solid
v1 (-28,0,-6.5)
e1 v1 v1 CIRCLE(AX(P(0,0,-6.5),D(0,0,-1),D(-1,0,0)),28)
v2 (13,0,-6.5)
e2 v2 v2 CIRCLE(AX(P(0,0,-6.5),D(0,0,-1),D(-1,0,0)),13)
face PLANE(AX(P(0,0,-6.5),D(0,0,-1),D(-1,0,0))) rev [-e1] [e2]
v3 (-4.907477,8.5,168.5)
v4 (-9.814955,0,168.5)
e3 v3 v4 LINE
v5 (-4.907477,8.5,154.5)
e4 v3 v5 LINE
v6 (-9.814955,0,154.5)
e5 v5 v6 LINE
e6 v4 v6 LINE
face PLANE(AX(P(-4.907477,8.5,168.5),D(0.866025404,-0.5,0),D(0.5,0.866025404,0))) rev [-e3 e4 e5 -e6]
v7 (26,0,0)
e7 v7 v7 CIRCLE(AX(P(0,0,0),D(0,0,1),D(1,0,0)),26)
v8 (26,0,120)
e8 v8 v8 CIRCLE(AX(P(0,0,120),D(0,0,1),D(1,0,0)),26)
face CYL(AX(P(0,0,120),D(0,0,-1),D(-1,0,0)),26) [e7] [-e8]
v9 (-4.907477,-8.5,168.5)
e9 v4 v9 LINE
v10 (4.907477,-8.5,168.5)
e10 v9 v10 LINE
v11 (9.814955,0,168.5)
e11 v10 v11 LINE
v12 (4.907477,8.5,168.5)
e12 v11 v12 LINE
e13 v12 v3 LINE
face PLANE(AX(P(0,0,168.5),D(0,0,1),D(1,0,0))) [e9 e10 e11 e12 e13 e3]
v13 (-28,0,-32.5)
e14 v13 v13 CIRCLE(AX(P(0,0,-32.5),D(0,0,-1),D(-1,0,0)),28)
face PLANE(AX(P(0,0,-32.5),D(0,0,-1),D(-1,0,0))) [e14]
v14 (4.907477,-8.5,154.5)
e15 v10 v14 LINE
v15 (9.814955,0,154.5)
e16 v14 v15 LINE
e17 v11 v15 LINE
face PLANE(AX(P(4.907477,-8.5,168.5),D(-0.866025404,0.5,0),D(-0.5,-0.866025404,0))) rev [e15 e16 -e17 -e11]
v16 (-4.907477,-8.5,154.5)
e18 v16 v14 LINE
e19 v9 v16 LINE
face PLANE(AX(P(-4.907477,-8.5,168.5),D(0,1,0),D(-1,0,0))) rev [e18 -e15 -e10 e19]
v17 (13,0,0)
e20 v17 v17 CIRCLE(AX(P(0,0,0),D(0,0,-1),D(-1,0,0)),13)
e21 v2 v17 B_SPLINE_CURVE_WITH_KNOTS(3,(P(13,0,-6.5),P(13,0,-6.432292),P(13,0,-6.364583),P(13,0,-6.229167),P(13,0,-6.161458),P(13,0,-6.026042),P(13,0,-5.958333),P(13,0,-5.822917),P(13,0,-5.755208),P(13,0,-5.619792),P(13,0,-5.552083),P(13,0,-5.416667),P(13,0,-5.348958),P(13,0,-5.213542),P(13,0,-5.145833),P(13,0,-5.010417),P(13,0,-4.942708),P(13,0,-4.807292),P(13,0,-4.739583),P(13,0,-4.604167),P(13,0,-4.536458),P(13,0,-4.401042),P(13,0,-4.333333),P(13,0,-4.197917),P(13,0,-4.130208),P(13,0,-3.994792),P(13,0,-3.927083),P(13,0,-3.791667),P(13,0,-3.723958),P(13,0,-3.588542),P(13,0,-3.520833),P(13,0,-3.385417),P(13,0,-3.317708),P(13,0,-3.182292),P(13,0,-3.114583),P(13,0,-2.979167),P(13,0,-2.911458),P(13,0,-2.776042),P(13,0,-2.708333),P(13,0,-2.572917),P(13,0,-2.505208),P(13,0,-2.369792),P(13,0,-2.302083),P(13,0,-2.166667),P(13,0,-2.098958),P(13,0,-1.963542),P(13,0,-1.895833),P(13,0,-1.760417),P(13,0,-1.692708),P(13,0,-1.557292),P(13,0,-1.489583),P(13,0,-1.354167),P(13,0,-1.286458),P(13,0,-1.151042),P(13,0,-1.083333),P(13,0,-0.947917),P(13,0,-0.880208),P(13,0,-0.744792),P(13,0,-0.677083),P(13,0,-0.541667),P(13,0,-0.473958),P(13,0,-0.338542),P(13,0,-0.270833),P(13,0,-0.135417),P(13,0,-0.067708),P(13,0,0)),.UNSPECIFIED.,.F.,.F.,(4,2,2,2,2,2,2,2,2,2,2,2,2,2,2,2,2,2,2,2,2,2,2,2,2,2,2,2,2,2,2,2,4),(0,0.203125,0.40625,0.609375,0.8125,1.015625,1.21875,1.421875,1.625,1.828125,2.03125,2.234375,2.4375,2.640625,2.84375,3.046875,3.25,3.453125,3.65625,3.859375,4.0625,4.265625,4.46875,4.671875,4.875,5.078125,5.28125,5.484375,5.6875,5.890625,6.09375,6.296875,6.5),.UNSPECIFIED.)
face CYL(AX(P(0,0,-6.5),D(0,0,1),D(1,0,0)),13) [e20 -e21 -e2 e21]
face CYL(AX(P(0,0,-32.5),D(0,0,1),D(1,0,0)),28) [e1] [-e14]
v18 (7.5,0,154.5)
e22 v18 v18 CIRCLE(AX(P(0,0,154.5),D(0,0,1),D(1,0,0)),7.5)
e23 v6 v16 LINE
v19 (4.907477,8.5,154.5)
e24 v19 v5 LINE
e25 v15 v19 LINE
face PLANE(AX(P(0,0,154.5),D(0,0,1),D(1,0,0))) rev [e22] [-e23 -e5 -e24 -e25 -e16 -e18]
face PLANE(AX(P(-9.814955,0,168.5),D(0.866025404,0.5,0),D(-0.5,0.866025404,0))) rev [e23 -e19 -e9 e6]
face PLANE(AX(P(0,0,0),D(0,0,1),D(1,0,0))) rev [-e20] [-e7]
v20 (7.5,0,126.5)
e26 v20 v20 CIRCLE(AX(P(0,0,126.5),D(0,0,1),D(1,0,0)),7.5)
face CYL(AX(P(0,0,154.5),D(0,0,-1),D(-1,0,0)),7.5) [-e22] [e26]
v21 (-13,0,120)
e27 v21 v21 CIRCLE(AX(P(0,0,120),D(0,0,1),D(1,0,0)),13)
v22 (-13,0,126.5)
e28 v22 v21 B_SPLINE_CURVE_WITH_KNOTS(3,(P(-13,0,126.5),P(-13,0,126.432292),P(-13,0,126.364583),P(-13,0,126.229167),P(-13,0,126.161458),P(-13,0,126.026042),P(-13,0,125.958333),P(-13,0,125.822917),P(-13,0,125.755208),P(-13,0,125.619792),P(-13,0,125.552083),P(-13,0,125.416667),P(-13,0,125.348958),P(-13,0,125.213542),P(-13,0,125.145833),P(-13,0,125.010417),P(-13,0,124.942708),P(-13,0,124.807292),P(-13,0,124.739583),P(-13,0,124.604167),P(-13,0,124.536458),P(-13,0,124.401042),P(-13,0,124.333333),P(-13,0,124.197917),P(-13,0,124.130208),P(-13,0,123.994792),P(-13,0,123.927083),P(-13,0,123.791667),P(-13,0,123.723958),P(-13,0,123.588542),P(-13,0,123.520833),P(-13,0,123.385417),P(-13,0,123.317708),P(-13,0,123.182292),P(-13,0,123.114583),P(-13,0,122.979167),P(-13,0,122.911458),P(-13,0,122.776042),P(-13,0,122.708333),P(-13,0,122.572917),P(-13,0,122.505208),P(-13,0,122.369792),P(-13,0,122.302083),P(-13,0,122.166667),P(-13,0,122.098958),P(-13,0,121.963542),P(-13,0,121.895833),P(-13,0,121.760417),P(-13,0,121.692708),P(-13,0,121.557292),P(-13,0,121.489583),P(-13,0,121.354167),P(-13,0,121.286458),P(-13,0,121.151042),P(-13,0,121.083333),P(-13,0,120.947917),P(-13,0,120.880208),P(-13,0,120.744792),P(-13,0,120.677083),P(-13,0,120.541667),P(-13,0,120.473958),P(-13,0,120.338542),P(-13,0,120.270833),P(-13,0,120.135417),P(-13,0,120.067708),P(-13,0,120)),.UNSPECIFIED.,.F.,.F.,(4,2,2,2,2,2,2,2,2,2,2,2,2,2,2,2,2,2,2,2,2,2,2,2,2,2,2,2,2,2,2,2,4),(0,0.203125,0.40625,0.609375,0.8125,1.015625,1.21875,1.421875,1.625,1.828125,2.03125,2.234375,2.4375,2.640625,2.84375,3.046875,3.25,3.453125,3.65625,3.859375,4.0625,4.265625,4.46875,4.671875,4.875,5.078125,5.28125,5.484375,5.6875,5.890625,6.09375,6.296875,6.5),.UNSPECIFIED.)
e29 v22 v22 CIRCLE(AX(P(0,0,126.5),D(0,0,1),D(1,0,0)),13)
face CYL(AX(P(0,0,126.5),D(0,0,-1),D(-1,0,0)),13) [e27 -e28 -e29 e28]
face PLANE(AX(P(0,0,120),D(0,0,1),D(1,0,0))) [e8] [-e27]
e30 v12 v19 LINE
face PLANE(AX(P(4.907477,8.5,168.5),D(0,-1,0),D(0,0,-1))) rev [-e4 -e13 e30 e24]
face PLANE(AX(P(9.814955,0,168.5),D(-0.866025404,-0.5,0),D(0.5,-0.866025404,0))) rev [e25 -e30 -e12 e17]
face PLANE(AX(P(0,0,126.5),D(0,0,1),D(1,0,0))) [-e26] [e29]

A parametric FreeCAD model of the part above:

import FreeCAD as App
import Part
import Sketcher
from FreeCAD import Vector
Q = App.Units.Quantity


def add_polygon(sketch, points):
    """Adds a closed chain of lines whose ends are joined by coincident constraints."""
    first, n = sketch.GeometryCount, len(points)
    for a, b in zip(points, points[1:] + points[:1]):
        sketch.addGeometry(Part.LineSegment(App.Vector(*a, 0), App.Vector(*b, 0)), False)
    for i in range(n):
        sketch.addConstraint(Sketcher.Constraint("Coincident", first + i, 2, first + (i + 1) % n, 1))

doc = App.newDocument("Part")
params = doc.addObject("Spreadsheet::Sheet", "Params")
for row, (alias, value) in enumerate([
    ("sketch1_diameter", "52 mm"),
    ("pad1_length", "120 mm"),
    ("sketch2_diameter", "26 mm"),
    ("pad2_length", "6.5 mm"),
    ("sketch3_diameter", "26 mm"),
    ("pad3_length", "6.5 mm"),
    ("sketch4_diameter", "15 mm"),
    ("pad4_length", "28 mm"),
    ("pad5_length", "14 mm"),
    ("sketch6_diameter", "56 mm"),
    ("pad6_length", "26 mm"),
], start=1):
    params.set(f"A{row}", alias)
    params.set(f"B{row}", "=" + value)
    params.setAlias(f"B{row}", alias)

body = doc.addObject("PartDesign::Body", "Body")

# Sketch on XY plane
sketch1 = doc.addObject("Sketcher::SketchObject", "Sketch")
body.addObject(sketch1)
sketch1.AttachmentSupport = (doc.XY_Plane, [""])
sketch1.MapMode = "FlatFace"
sketch1.addGeometry(Part.Circle(Vector(0, 0, 0), Vector(0, 0, 1), 26), False)
sketch1.addConstraint(Sketcher.Constraint("Coincident", 0, 3, -1, 1))
sketch1.addConstraint(Sketcher.Constraint("Diameter", 0, 52.0))
sketch1.setExpression("Constraints[1]", "Params.sketch1_diameter")
pad1 = doc.addObject("PartDesign::Pad", "Pad")
body.addObject(pad1)
pad1.Profile = sketch1
pad1.setExpression("Length", "Params.pad1_length")

# Sketch on XY plane
sketch2 = doc.addObject("Sketcher::SketchObject", "Sketch001")
body.addObject(sketch2)
sketch2.AttachmentSupport = (doc.XY_Plane, [""])
sketch2.MapMode = "FlatFace"
sketch2.AttachmentOffset = App.Placement(Vector(0, 0, 120), App.Rotation())
sketch2.addGeometry(Part.Circle(Vector(0, 0, 0), Vector(0, 0, 1), 13), False)
sketch2.addConstraint(Sketcher.Constraint("Coincident", 0, 3, -1, 1))
sketch2.addConstraint(Sketcher.Constraint("Diameter", 0, 26.0))
sketch2.setExpression("Constraints[1]", "Params.sketch2_diameter")
pad2 = doc.addObject("PartDesign::Pad", "Pad001")
body.addObject(pad2)
pad2.Profile = sketch2
pad2.setExpression("Length", "Params.pad2_length")

# Sketch on XY plane
sketch3 = doc.addObject("Sketcher::SketchObject", "Sketch002")
body.addObject(sketch3)
sketch3.AttachmentSupport = (doc.XY_Plane, [""])
sketch3.MapMode = "FlatFace"
sketch3.AttachmentOffset = App.Placement(Vector(0, 0, -6.5), App.Rotation())
sketch3.addGeometry(Part.Circle(Vector(0, 0, 0), Vector(0, 0, 1), 13), False)
sketch3.addConstraint(Sketcher.Constraint("Coincident", 0, 3, -1, 1))
sketch3.addConstraint(Sketcher.Constraint("Diameter", 0, 26.0))
sketch3.setExpression("Constraints[1]", "Params.sketch3_diameter")
pad3 = doc.addObject("PartDesign::Pad", "Pad002")
body.addObject(pad3)
pad3.Profile = sketch3
pad3.setExpression("Length", "Params.pad3_length")

# Sketch on XY plane
sketch4 = doc.addObject("Sketcher::SketchObject", "Sketch003")
body.addObject(sketch4)
sketch4.AttachmentSupport = (doc.XY_Plane, [""])
sketch4.MapMode = "FlatFace"
sketch4.AttachmentOffset = App.Placement(Vector(0, 0, 126.5), App.Rotation())
sketch4.addGeometry(Part.Circle(Vector(0, 0, 0), Vector(0, 0, 1), 8), False)
sketch4.addConstraint(Sketcher.Constraint("Coincident", 0, 3, -1, 1))
sketch4.addConstraint(Sketcher.Constraint("Diameter", 0, 15.0))
sketch4.setExpression("Constraints[1]", "Params.sketch4_diameter")
pad4 = doc.addObject("PartDesign::Pad", "Pad003")
body.addObject(pad4)
pad4.Profile = sketch4
pad4.setExpression("Length", "Params.pad4_length")

# Sketch on XY plane
sketch5 = doc.addObject("Sketcher::SketchObject", "Sketch004")
body.addObject(sketch5)
sketch5.AttachmentSupport = (doc.XY_Plane, [""])
sketch5.MapMode = "FlatFace"
sketch5.AttachmentOffset = App.Placement(Vector(0, 0, 154.5), App.Rotation())
add_polygon(sketch5, [(10, 0), (5, 8), (-5, 8), (-10, 0), (-5, -8), (5, -8)])  # lines 0-5
sketch5.addConstraint(Sketcher.Constraint("Horizontal", 1))
sketch5.addConstraint(Sketcher.Constraint("Horizontal", 4))
sketch5.addConstraint(Sketcher.Constraint("Symmetric", 0, 2, 3, 2, -1, 1))
sketch5.addConstraint(Sketcher.Constraint("Symmetric", 2, 2, 5, 2, -1, 1))
sketch5.addConstraint(Sketcher.Constraint("PointOnObject", 2, 2, -1))
sketch5.addConstraint(Sketcher.Constraint("Parallel", 2, 5))
sketch5.addConstraint(Sketcher.Constraint("Vertical", 1, 2, 3, 2))
sketch5.addConstraint(Sketcher.Constraint("Angle", 0, Q("120 deg")))
sketch5.addConstraint(Sketcher.Constraint("DistanceY", 3, 2, 1, 2, 17.0))
sketch5.addConstraint(Sketcher.Constraint("DistanceX", 1, 2, 1, 1, 9.814955))
pad5 = doc.addObject("PartDesign::Pad", "Pad004")
body.addObject(pad5)
pad5.Profile = sketch5
pad5.setExpression("Length", "Params.pad5_length")

# Sketch on XY plane
sketch6 = doc.addObject("Sketcher::SketchObject", "Sketch005")
body.addObject(sketch6)
sketch6.AttachmentSupport = (doc.XY_Plane, [""])
sketch6.MapMode = "FlatFace"
sketch6.AttachmentOffset = App.Placement(Vector(0, 0, -6.5), App.Rotation())
sketch6.addGeometry(Part.Circle(Vector(0, 0, 0), Vector(0, 0, 1), 28), False)
sketch6.addConstraint(Sketcher.Constraint("Coincident", 0, 3, -1, 1))
sketch6.addConstraint(Sketcher.Constraint("Diameter", 0, 56.0))
sketch6.setExpression("Constraints[1]", "Params.sketch6_diameter")
pad6 = doc.addObject("PartDesign::Pad", "Pad005")
body.addObject(pad6)
pad6.Profile = sketch6
pad6.setExpression("Length", "Params.pad6_length")
pad6.Reversed = True

doc.recompute()
